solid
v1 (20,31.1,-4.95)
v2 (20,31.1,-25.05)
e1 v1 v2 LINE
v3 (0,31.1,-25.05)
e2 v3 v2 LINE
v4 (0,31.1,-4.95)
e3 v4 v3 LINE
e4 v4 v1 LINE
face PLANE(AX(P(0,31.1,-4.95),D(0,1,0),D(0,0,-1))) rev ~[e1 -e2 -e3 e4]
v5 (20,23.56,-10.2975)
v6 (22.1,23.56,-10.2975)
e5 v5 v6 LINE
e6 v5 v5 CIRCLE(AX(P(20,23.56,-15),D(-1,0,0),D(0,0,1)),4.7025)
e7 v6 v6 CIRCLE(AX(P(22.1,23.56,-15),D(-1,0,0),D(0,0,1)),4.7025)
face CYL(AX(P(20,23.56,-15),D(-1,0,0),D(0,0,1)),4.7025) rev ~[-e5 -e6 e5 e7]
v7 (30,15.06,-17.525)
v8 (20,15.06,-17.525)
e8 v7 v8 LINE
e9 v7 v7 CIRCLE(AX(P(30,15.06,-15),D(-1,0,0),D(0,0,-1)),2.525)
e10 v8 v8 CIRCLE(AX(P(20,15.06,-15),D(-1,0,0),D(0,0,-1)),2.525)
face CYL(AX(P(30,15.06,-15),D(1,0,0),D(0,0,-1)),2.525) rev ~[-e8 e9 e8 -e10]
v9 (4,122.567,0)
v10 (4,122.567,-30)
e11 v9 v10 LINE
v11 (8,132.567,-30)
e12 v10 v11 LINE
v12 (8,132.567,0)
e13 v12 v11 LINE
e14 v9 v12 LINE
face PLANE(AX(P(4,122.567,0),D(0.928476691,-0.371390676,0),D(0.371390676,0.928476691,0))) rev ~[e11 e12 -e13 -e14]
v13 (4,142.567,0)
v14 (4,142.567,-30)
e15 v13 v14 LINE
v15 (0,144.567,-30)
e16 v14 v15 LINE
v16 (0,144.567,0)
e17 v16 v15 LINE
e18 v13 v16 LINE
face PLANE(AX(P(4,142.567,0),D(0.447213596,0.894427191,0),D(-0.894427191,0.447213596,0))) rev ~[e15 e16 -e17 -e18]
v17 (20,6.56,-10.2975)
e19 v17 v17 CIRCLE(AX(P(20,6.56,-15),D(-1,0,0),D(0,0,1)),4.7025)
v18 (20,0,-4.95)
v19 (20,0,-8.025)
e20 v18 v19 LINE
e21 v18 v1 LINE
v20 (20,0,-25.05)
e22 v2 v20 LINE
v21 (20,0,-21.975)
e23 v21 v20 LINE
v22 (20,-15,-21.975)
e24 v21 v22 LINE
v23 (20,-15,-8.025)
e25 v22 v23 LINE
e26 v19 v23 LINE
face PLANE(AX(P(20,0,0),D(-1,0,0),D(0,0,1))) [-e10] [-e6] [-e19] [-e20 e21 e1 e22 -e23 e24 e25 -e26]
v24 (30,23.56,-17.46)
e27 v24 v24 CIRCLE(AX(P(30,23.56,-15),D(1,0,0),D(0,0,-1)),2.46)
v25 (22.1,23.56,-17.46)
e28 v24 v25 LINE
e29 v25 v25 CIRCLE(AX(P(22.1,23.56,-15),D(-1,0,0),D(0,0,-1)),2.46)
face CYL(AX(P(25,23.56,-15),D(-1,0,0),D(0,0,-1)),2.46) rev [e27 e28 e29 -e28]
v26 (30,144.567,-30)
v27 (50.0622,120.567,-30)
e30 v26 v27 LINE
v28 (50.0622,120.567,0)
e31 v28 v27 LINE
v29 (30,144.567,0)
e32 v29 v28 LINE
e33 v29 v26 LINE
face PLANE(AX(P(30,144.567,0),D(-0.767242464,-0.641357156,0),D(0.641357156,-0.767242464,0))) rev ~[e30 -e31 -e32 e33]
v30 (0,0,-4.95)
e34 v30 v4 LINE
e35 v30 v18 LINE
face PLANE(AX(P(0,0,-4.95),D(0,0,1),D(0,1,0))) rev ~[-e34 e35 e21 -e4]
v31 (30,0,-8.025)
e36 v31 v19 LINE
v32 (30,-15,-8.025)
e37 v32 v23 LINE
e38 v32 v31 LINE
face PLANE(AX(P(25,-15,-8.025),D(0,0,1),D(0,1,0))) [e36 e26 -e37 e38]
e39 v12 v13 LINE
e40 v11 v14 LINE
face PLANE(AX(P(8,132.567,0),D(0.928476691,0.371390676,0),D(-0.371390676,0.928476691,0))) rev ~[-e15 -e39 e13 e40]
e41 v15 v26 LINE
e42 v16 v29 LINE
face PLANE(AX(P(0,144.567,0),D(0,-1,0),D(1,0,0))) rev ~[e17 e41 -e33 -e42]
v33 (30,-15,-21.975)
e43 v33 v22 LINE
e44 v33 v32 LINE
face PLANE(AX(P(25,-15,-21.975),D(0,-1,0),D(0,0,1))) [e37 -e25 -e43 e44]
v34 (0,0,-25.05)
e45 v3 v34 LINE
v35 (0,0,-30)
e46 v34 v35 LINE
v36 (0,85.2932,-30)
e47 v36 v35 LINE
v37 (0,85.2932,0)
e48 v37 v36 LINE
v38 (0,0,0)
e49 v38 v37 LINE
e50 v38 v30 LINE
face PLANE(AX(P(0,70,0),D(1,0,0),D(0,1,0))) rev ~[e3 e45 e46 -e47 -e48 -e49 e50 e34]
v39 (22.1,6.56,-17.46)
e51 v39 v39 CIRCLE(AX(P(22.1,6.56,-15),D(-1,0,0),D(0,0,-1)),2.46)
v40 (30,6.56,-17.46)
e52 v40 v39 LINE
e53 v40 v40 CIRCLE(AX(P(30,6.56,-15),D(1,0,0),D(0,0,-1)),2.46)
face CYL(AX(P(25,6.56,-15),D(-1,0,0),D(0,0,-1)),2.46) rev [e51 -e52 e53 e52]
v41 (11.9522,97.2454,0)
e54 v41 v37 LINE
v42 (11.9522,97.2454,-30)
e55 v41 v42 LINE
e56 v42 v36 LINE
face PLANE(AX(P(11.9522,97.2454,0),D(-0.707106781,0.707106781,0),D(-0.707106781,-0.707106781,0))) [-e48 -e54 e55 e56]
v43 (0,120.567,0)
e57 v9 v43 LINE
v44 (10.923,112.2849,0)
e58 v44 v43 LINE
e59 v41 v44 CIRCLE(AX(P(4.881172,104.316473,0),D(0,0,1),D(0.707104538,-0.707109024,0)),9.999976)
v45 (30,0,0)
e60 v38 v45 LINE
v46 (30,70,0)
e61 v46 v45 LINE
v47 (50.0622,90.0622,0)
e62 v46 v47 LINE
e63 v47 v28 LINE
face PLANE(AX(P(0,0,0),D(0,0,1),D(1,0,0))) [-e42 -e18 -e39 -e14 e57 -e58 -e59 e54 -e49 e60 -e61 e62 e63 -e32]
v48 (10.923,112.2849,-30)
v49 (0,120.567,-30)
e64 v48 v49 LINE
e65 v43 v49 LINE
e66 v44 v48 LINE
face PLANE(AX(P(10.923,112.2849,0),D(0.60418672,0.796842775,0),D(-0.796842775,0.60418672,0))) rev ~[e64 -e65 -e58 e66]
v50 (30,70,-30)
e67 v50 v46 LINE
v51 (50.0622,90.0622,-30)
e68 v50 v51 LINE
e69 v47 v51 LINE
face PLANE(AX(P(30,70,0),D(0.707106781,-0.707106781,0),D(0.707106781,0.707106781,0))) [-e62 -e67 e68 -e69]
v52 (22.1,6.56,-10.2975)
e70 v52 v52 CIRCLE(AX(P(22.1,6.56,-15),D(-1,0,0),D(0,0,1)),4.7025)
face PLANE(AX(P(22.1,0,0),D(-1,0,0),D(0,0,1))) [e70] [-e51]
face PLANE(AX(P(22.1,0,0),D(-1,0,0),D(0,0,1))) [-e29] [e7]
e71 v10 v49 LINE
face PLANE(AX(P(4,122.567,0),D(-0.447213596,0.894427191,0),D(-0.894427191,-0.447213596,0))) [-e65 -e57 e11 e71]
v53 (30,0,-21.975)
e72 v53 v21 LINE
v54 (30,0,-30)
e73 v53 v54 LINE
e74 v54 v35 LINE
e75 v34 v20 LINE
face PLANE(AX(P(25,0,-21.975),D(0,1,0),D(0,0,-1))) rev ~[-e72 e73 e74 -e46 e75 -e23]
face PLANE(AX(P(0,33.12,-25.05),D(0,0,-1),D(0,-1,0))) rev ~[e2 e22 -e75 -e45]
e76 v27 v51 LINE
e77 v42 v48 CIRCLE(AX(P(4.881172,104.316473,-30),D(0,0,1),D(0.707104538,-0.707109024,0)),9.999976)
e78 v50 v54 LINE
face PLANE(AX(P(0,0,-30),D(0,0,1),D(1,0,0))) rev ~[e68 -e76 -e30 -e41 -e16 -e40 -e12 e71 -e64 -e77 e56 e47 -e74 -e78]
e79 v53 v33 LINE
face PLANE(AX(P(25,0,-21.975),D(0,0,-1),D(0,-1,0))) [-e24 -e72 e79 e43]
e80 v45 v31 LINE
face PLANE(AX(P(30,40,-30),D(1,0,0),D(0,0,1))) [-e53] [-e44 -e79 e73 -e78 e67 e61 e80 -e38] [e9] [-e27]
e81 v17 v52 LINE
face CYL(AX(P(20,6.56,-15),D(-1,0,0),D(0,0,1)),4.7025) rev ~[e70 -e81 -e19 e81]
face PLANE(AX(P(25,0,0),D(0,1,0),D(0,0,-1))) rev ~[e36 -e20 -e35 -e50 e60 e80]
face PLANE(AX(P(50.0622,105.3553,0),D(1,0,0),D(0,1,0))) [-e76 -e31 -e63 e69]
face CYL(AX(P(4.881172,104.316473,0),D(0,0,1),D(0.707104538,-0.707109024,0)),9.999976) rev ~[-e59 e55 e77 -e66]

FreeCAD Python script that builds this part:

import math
import FreeCAD as App
import Part
import Sketcher

V = App.Vector
Q = App.Units.Quantity

doc = App.newDocument("Part")
params = doc.addObject("Spreadsheet::Sheet", "Params")
for row, (alias, value) in enumerate([
    ("sketch1_width", "25 mm"),
    ("sketch1_height", "40 mm"),
    ("pad1_length", "30 mm"),
    ("sketch2_diameter", "4.92 mm"),
    ("pocket1_length", "30 mm"),
    ("sketch3_height", "20.1 mm"),
    ("sketch3_width", "33.12 mm"),
    ("pocket2_length", "20 mm"),
    ("sketch4_height", "13.95 mm"),
    ("sketch4_width", "5 mm"),
    ("pad2_length", "15 mm"),
    ("sketch5_diameter", "4.92 mm"),
    ("pocket3_length", "2.1 mm"),
    ("sketch6_diameter", "4.92 mm"),
    ("pocket4_length", "10 mm"),
    ("sketch7_diameter", "4.92 mm"),
    ("pocket5_length", "2.1 mm"),
    ("sketch8_diameter", "4.92 mm"),
    ("sketch8_width", "40 mm"),
    ("sketch8_width2", "15 mm"),
    ("sketch8_height", "30 mm"),
    ("sketch8_height2", "13.95 mm"),
    ("pad3_length", "5 mm"),
    ("sketch9_width", "30 mm"),
    ("pad4_length", "30 mm"),
    ("sketch10_diameter", "5.05 mm"),
    ("pocket6_length", "30 mm"),
    ("sketch11_width", "2.02 mm"),
    ("sketch11_height", "20.1 mm"),
    ("pad5_length", "20 mm"),
    ("sketch12_radius", "10 mm"),
    ("sketch12_width", "30 mm"),
    ("pad6_length", "30 mm"),
], start=1):
    params.set(f"A{row}", alias)
    params.set(f"B{row}", "=" + value)
    params.setAlias(f"B{row}", alias)

body = doc.addObject("PartDesign::Body", "Body")

sketch1 = body.newObject("Sketcher::SketchObject", "Sketch")
sketch1.AttachmentSupport = (doc.getObject("XY_Plane"), [""])
sketch1.MapMode = "FlatFace"
sketch1.addGeometry([
    Part.LineSegment(V(0, 40, 0), V(0, 0, 0)),
    Part.LineSegment(V(0, 0, 0), V(25, 0, 0)),
    Part.LineSegment(V(25, 0, 0), V(25, 40, 0)),
    Part.LineSegment(V(25, 40, 0), V(0, 40, 0)),
], False)
sketch1.addConstraint([
    Sketcher.Constraint("Coincident", 0, 2, 1, 1),
    Sketcher.Constraint("Coincident", 1, 2, 2, 1),
    Sketcher.Constraint("Coincident", 2, 2, 3, 1),
    Sketcher.Constraint("Coincident", 3, 2, 0, 1),
    Sketcher.Constraint("Vertical", 0),
    Sketcher.Constraint("Horizontal", 1),
    Sketcher.Constraint("Vertical", 2),
    Sketcher.Constraint("Horizontal", 3),
    Sketcher.Constraint("Coincident", 0, 2, -1, 1),
    Sketcher.Constraint("DistanceX", 1, 1, 1, 2, 25.0),
    Sketcher.Constraint("DistanceY", 0, 2, 0, 1, 40.0),
])
sketch1.setExpression("Constraints[9]", "Params.sketch1_width")
sketch1.setExpression("Constraints[10]", "Params.sketch1_height")
pad1 = body.newObject("PartDesign::Pad", "Pad")
pad1.Profile = sketch1
pad1.setExpression("Length", "Params.pad1_length")
pad1.Reversed = True

sketch2 = body.newObject("Sketcher::SketchObject", "Sketch001")
sketch2.AttachmentSupport = (doc.getObject("YZ_Plane"), [""])
sketch2.MapMode = "FlatFace"
sketch2.AttachmentOffset = App.Placement(V(0, 0, 25), App.Rotation())
sketch2.addGeometry(Part.Circle(V(6.6, -15, 0), V(0, 0, 1), 2.5), False)
sketch2.addConstraint([
    Sketcher.Constraint("Diameter", 0, 4.92),
    Sketcher.Constraint("DistanceY", 0, 3, -1, 1, 15.0),
    Sketcher.Constraint("DistanceX", -1, 1, 0, 3, 6.56),
])
sketch2.setExpression("Constraints[0]", "Params.sketch2_diameter")
pocket1 = body.newObject("PartDesign::Pocket", "Pocket")
pocket1.Profile = sketch2
pocket1.setExpression("Length", "Params.pocket1_length")

sketch3 = body.newObject("Sketcher::SketchObject", "Sketch002")
sketch3.AttachmentSupport = (doc.getObject("YZ_Plane"), [""])
sketch3.MapMode = "FlatFace"
sketch3.addGeometry([
    Part.LineSegment(V(0, -25, 0), V(0, -5, 0)),
    Part.LineSegment(V(0, -5, 0), V(33, -5, 0)),
    Part.LineSegment(V(33, -5, 0), V(33, -25, 0)),
    Part.LineSegment(V(33, -25, 0), V(0, -25, 0)),
], False)
sketch3.addConstraint([
    Sketcher.Constraint("Coincident", 0, 2, 1, 1),
    Sketcher.Constraint("Coincident", 1, 2, 2, 1),
    Sketcher.Constraint("Coincident", 2, 2, 3, 1),
    Sketcher.Constraint("Coincident", 3, 2, 0, 1),
    Sketcher.Constraint("Vertical", 0),
    Sketcher.Constraint("Horizontal", 1),
    Sketcher.Constraint("Vertical", 2),
    Sketcher.Constraint("Horizontal", 3),
    Sketcher.Constraint("PointOnObject", 0, 2, -2),
    Sketcher.Constraint("DistanceY", 0, 1, 0, 2, 20.1),
    Sketcher.Constraint("DistanceX", 1, 1, 1, 2, 33.12),
    Sketcher.Constraint("DistanceY", 0, 2, -1, 1, 4.95),
])
sketch3.setExpression("Constraints[9]", "Params.sketch3_height")
sketch3.setExpression("Constraints[10]", "Params.sketch3_width")
pocket2 = body.newObject("PartDesign::Pocket", "Pocket001")
pocket2.Profile = sketch3
pocket2.setExpression("Length", "Params.pocket2_length")
pocket2.Reversed = True

sketch4 = body.newObject("Sketcher::SketchObject", "Sketch003")
sketch4.AttachmentSupport = (doc.getObject("XZ_Plane"), [""])
sketch4.MapMode = "FlatFace"
sketch4.addGeometry([
    Part.LineSegment(V(25, -8, 0), V(20, -8, 0)),
    Part.LineSegment(V(20, -8, 0), V(20, -22, 0)),
    Part.LineSegment(V(20, -22, 0), V(25, -22, 0)),
    Part.LineSegment(V(25, -22, 0), V(25, -8, 0)),
], False)
sketch4.addConstraint([
    Sketcher.Constraint("Coincident", 0, 2, 1, 1),
    Sketcher.Constraint("Coincident", 1, 2, 2, 1),
    Sketcher.Constraint("Coincident", 2, 2, 3, 1),
    Sketcher.Constraint("Coincident", 3, 2, 0, 1),
    Sketcher.Constraint("Horizontal", 0),
    Sketcher.Constraint("Vertical", 1),
    Sketcher.Constraint("Horizontal", 2),
    Sketcher.Constraint("Vertical", 3),
    Sketcher.Constraint("DistanceY", 1, 2, 1, 1, 13.95),
    Sketcher.Constraint("DistanceX", 0, 2, 0, 1, 5.0),
    Sketcher.Constraint("DistanceX", -1, 1, 0, 2, 20.0),
    Sketcher.Constraint("DistanceY", 0, 2, -1, 1, 8.025),
])
sketch4.setExpression("Constraints[8]", "Params.sketch4_height")
sketch4.setExpression("Constraints[9]", "Params.sketch4_width")
pad2 = body.newObject("PartDesign::Pad", "Pad001")
pad2.Profile = sketch4
pad2.setExpression("Length", "Params.pad2_length")

sketch5 = body.newObject("Sketcher::SketchObject", "Sketch004")
sketch5.AttachmentSupport = (doc.getObject("YZ_Plane"), [""])
sketch5.MapMode = "FlatFace"
sketch5.AttachmentOffset = App.Placement(V(0, 0, 20), App.Rotation())
sketch5.addGeometry([
    Part.Circle(V(6.6, -15, 0), V(0, 0, 1), 4.7),
    Part.Circle(V(6.6, -15, 0), V(0, 0, 1), 2.5),
], False)
sketch5.addConstraint([
    Sketcher.Constraint("Coincident", 1, 3, 0, 3),
    Sketcher.Constraint("Diameter", 0, 9.405),
    Sketcher.Constraint("Diameter", 1, 4.92),
    Sketcher.Constraint("DistanceY", 0, 3, -1, 1, 15.0),
    Sketcher.Constraint("DistanceX", -1, 1, 0, 3, 6.56),
])
sketch5.setExpression("Constraints[2]", "Params.sketch5_diameter")
pocket3 = body.newObject("PartDesign::Pocket", "Pocket002")
pocket3.Profile = sketch5
pocket3.setExpression("Length", "Params.pocket3_length")
pocket3.Reversed = True

sketch6 = body.newObject("Sketcher::SketchObject", "Sketch005")
sketch6.AttachmentSupport = (doc.getObject("YZ_Plane"), [""])
sketch6.MapMode = "FlatFace"
sketch6.AttachmentOffset = App.Placement(V(0, 0, 25), App.Rotation())
sketch6.addGeometry(Part.Circle(V(23.6, -15, 0), V(0, 0, 1), 2.5), False)
sketch6.addConstraint([
    Sketcher.Constraint("Diameter", 0, 4.92),
    Sketcher.Constraint("DistanceY", 0, 3, -1, 1, 15.0),
    Sketcher.Constraint("DistanceX", -1, 1, 0, 3, 23.56),
])
sketch6.setExpression("Constraints[0]", "Params.sketch6_diameter")
pocket4 = body.newObject("PartDesign::Pocket", "Pocket003")
pocket4.Profile = sketch6
pocket4.setExpression("Length", "Params.pocket4_length")

sketch7 = body.newObject("Sketcher::SketchObject", "Sketch006")
sketch7.AttachmentSupport = (doc.getObject("YZ_Plane"), [""])
sketch7.MapMode = "FlatFace"
sketch7.AttachmentOffset = App.Placement(V(0, 0, 20), App.Rotation())
sketch7.addGeometry([
    Part.Circle(V(23.6, -15, 0), V(0, 0, 1), 4.7),
    Part.Circle(V(23.6, -15, 0), V(0, 0, 1), 2.5),
], False)
sketch7.addConstraint([
    Sketcher.Constraint("Coincident", 1, 3, 0, 3),
    Sketcher.Constraint("Diameter", 0, 9.405),
    Sketcher.Constraint("Diameter", 1, 4.92),
    Sketcher.Constraint("DistanceY", 0, 3, -1, 1, 15.0),
    Sketcher.Constraint("DistanceX", -1, 1, 0, 3, 23.56),
])
sketch7.setExpression("Constraints[2]", "Params.sketch7_diameter")
pocket5 = body.newObject("PartDesign::Pocket", "Pocket004")
pocket5.Profile = sketch7
pocket5.setExpression("Length", "Params.pocket5_length")
pocket5.Reversed = True

sketch8 = body.newObject("Sketcher::SketchObject", "Sketch007")
sketch8.AttachmentSupport = (doc.getObject("YZ_Plane"), [""])
sketch8.MapMode = "FlatFace"
sketch8.AttachmentOffset = App.Placement(V(0, 0, 25), App.Rotation())
sketch8.addGeometry([
    Part.LineSegment(V(0, -30, 0), V(40, -30, 0)),
    Part.LineSegment(V(40, -30, 0), V(40, 0, 0)),
    Part.LineSegment(V(40, 0, 0), V(0, 0, 0)),
    Part.LineSegment(V(0, 0, 0), V(0, -8, 0)),
    Part.LineSegment(V(0, -8, 0), V(-15, -8, 0)),
    Part.LineSegment(V(-15, -8, 0), V(-15, -22, 0)),
    Part.LineSegment(V(-15, -22, 0), V(0, -22, 0)),
    Part.LineSegment(V(0, -22, 0), V(0, -30, 0)),
    Part.Circle(V(6.6, -15, 0), V(0, 0, 1), 2.5),
    Part.Circle(V(23.6, -15, 0), V(0, 0, 1), 2.5),
], False)
sketch8.addConstraint([
    Sketcher.Constraint("Coincident", 0, 2, 1, 1),
    Sketcher.Constraint("Coincident", 1, 2, 2, 1),
    Sketcher.Constraint("Coincident", 2, 2, 3, 1),
    Sketcher.Constraint("Coincident", 3, 2, 4, 1),
    Sketcher.Constraint("Coincident", 4, 2, 5, 1),
    Sketcher.Constraint("Coincident", 5, 2, 6, 1),
    Sketcher.Constraint("Coincident", 6, 2, 7, 1),
    Sketcher.Constraint("Coincident", 7, 2, 0, 1),
    Sketcher.Constraint("Horizontal", 0),
    Sketcher.Constraint("Vertical", 1),
    Sketcher.Constraint("Horizontal", 2),
    Sketcher.Constraint("Vertical", 3),
    Sketcher.Constraint("Horizontal", 4),
    Sketcher.Constraint("Vertical", 5),
    Sketcher.Constraint("Horizontal", 6),
    Sketcher.Constraint("Vertical", 7),
    Sketcher.Constraint("Coincident", 2, 2, -1, 1),
    Sketcher.Constraint("Equal", 8, 9),
    Sketcher.Constraint("PointOnObject", 6, 2, -2),
    Sketcher.Constraint("Horizontal", 8, 3, 9, 3),
    Sketcher.Constraint("Equal", 3, 7),
    Sketcher.Constraint("Diameter", 8, 4.92),
    Sketcher.Constraint("DistanceX", 0, 1, 0, 2, 40.0),
    Sketcher.Constraint("DistanceX", 4, 2, 4, 1, 15.0),
    Sketcher.Constraint("DistanceY", 1, 1, 1, 2, 30.0),
    Sketcher.Constraint("DistanceY", 8, 3, -1, 1, 15.0),
    Sketcher.Constraint("DistanceX", 8, 3, 9, 3, 17.0),
    Sketcher.Constraint("DistanceY", 5, 2, 5, 1, 13.95),
    Sketcher.Constraint("DistanceX", -1, 1, 8, 3, 6.56),
])
sketch8.setExpression("Constraints[21]", "Params.sketch8_diameter")
sketch8.setExpression("Constraints[22]", "Params.sketch8_width")
sketch8.setExpression("Constraints[23]", "Params.sketch8_width2")
sketch8.setExpression("Constraints[24]", "Params.sketch8_height")
sketch8.setExpression("Constraints[27]", "Params.sketch8_height2")
pad3 = body.newObject("PartDesign::Pad", "Pad002")
pad3.Profile = sketch8
pad3.setExpression("Length", "Params.pad3_length")

sketch9 = body.newObject("Sketcher::SketchObject", "Sketch008")
sketch9.AttachmentSupport = (doc.getObject("XZ_Plane"), [""])
sketch9.MapMode = "FlatFace"
sketch9.AttachmentOffset = App.Placement(V(0, 0, -40), App.Rotation())
sketch9.addGeometry([
    Part.LineSegment(V(30, -30, 0), V(0, -30, 0)),
    Part.LineSegment(V(0, -30, 0), V(0, 0, 0)),
    Part.LineSegment(V(0, 0, 0), V(30, 0, 0)),
    Part.LineSegment(V(30, 0, 0), V(30, -30, 0)),
], False)
sketch9.addConstraint([
    Sketcher.Constraint("Coincident", 0, 2, 1, 1),
    Sketcher.Constraint("Coincident", 1, 2, 2, 1),
    Sketcher.Constraint("Coincident", 2, 2, 3, 1),
    Sketcher.Constraint("Coincident", 3, 2, 0, 1),
    Sketcher.Constraint("Horizontal", 0),
    Sketcher.Constraint("Vertical", 1),
    Sketcher.Constraint("Horizontal", 2),
    Sketcher.Constraint("Vertical", 3),
    Sketcher.Constraint("Coincident", 1, 2, -1, 1),
    Sketcher.Constraint("Equal", 2, 1),
    Sketcher.Constraint("DistanceX", 0, 2, 0, 1, 30.0),
])
sketch9.setExpression("Constraints[10]", "Params.sketch9_width")
pad4 = body.newObject("PartDesign::Pad", "Pad003")
pad4.Profile = sketch9
pad4.setExpression("Length", "Params.pad4_length")
pad4.Reversed = True

sketch10 = body.newObject("Sketcher::SketchObject", "Sketch009")
sketch10.AttachmentSupport = (doc.getObject("YZ_Plane"), [""])
sketch10.MapMode = "FlatFace"
sketch10.AttachmentOffset = App.Placement(V(0, 0, 30), App.Rotation())
sketch10.addGeometry(Part.Circle(V(15.1, -15, 0), V(0, 0, 1), 2.5), False)
sketch10.addConstraint([
    Sketcher.Constraint("Diameter", 0, 5.05),
    Sketcher.Constraint("DistanceY", 0, 3, -1, 1, 15.0),
    Sketcher.Constraint("DistanceX", -1, 1, 0, 3, 15.06),
])
sketch10.setExpression("Constraints[0]", "Params.sketch10_diameter")
pocket6 = body.newObject("PartDesign::Pocket", "Pocket005")
pocket6.Profile = sketch10
pocket6.setExpression("Length", "Params.pocket6_length")

sketch11 = body.newObject("Sketcher::SketchObject", "Sketch010")
sketch11.AttachmentSupport = (doc.getObject("YZ_Plane"), [""])
sketch11.MapMode = "FlatFace"
sketch11.addGeometry([
    Part.LineSegment(V(33.1, -5, 0), V(33.1, -25.1, 0)),
    Part.LineSegment(V(33.1, -25.1, 0), V(31.1, -25.1, 0)),
    Part.LineSegment(V(31.1, -25.1, 0), V(31.1, -5, 0)),
    Part.LineSegment(V(31.1, -5, 0), V(33.1, -5, 0)),
], False)
sketch11.addConstraint([
    Sketcher.Constraint("Coincident", 0, 2, 1, 1),
    Sketcher.Constraint("Coincident", 1, 2, 2, 1),
    Sketcher.Constraint("Coincident", 2, 2, 3, 1),
    Sketcher.Constraint("Coincident", 3, 2, 0, 1),
    Sketcher.Constraint("Vertical", 0),
    Sketcher.Constraint("Horizontal", 1),
    Sketcher.Constraint("Vertical", 2),
    Sketcher.Constraint("Horizontal", 3),
    Sketcher.Constraint("DistanceX", 1, 2, 1, 1, 2.02),
    Sketcher.Constraint("DistanceY", 0, 2, 0, 1, 20.1),
    Sketcher.Constraint("DistanceX", -1, 1, 1, 2, 31.1),
    Sketcher.Constraint("DistanceY", 0, 2, -1, 1, 25.05),
])
sketch11.setExpression("Constraints[8]", "Params.sketch11_width")
sketch11.setExpression("Constraints[9]", "Params.sketch11_height")
pad5 = body.newObject("PartDesign::Pad", "Pad004")
pad5.Profile = sketch11
pad5.setExpression("Length", "Params.pad5_length")

sketch12 = body.newObject("Sketcher::SketchObject", "Sketch011")
sketch12.AttachmentSupport = (doc.getObject("XY_Plane"), [""])
sketch12.MapMode = "FlatFace"
sketch12.addGeometry([
    Part.LineSegment(V(0, 85.3, 0), V(0, 70, 0)),
    Part.LineSegment(V(0, 70, 0), V(30, 70, 0)),
    Part.LineSegment(V(30, 70, 0), V(50.1, 90.1, 0)),
    Part.LineSegment(V(50.1, 90.1, 0), V(50.1, 120.6, 0)),
    Part.LineSegment(V(50.1, 120.6, 0), V(30, 144.6, 0)),
    Part.LineSegment(V(30, 144.6, 0), V(0, 144.6, 0)),
    Part.LineSegment(V(0, 144.6, 0), V(4, 142.6, 0)),
    Part.LineSegment(V(4, 142.6, 0), V(8, 132.6, 0)),
    Part.LineSegment(V(8, 132.6, 0), V(4, 122.6, 0)),
    Part.LineSegment(V(4, 122.6, 0), V(0, 120.6, 0)),
    Part.LineSegment(V(0, 120.6, 0), V(10.9, 112.3, 0)),
    Part.ArcOfCircle(Part.Circle(V(4.9, 104.3, 0), V(0, 0, 1), 10), math.radians(-45), math.radians(53)),
    Part.LineSegment(V(12, 97.2, 0), V(0, 85.3, 0)),
], False)
sketch12.addConstraint([
    Sketcher.Constraint("Coincident", 0, 2, 1, 1),
    Sketcher.Constraint("Coincident", 1, 2, 2, 1),
    Sketcher.Constraint("Coincident", 2, 2, 3, 1),
    Sketcher.Constraint("Coincident", 3, 2, 4, 1),
    Sketcher.Constraint("Coincident", 4, 2, 5, 1),
    Sketcher.Constraint("Coincident", 5, 2, 6, 1),
    Sketcher.Constraint("Coincident", 6, 2, 7, 1),
    Sketcher.Constraint("Coincident", 7, 2, 8, 1),
    Sketcher.Constraint("Coincident", 8, 2, 9, 1),
    Sketcher.Constraint("Coincident", 9, 2, 10, 1),
    Sketcher.Constraint("Tangent", 10, 2, 11, 2),
    Sketcher.Constraint("Tangent", 11, 1, 12, 1),
    Sketcher.Constraint("Coincident", 12, 2, 0, 1),
    Sketcher.Constraint("Vertical", 0),
    Sketcher.Constraint("Horizontal", 1),
    Sketcher.Constraint("Vertical", 3),
    Sketcher.Constraint("Horizontal", 5),
    Sketcher.Constraint("PointOnObject", 0, 2, -2),
    Sketcher.Constraint("PointOnObject", 5, 2, -2),
    Sketcher.Constraint("PointOnObject", 9, 2, -2),
    Sketcher.Constraint("Parallel", 2, 12),
    Sketcher.Constraint("Horizontal", 3, 2, 9, 2),
    Sketcher.Constraint("Vertical", 1, 2, 4, 2),
    Sketcher.Constraint("Vertical", 6, 2, 8, 2),
    Sketcher.Constraint("Equal", 7, 8),
    Sketcher.Constraint("Equal", 6, 9),
    Sketcher.Constraint("Radius", 11, 10.0),
    Sketcher.Constraint("Angle", 2, Q("45 deg")),
    Sketcher.Constraint("DistanceY", 7, 2, 6, 2, 10.0),
    Sketcher.Constraint("DistanceX", 1, 1, 1, 2, 30.0),
    Sketcher.Constraint("DistanceY", -1, 1, 0, 2, 70.0),
    Sketcher.Constraint("DistanceX", -1, 1, 6, 2, 4.0),
    Sketcher.Constraint("DistanceX", -1, 1, 7, 2, 8.0),
    Sketcher.Constraint("DistanceY", 3, 2, 4, 2, 24.0),
    Sketcher.Constraint("Angle", 10, Q("-37.1703 deg")),
    Sketcher.Constraint("Distance", 12, 16.903),
    Sketcher.Constraint("DistanceY", 0, 2, 0, 1, 15.2932),
    Sketcher.Constraint("DistanceY", 3, 1, 3, 2, 30.5048),
])
sketch12.setExpression("Constraints[26]", "Params.sketch12_radius")
sketch12.setExpression("Constraints[29]", "Params.sketch12_width")
pad6 = body.newObject("PartDesign::Pad", "Pad005")
pad6.Profile = sketch12
pad6.setExpression("Length", "Params.pad6_length")
pad6.Reversed = True

doc.recompute()
